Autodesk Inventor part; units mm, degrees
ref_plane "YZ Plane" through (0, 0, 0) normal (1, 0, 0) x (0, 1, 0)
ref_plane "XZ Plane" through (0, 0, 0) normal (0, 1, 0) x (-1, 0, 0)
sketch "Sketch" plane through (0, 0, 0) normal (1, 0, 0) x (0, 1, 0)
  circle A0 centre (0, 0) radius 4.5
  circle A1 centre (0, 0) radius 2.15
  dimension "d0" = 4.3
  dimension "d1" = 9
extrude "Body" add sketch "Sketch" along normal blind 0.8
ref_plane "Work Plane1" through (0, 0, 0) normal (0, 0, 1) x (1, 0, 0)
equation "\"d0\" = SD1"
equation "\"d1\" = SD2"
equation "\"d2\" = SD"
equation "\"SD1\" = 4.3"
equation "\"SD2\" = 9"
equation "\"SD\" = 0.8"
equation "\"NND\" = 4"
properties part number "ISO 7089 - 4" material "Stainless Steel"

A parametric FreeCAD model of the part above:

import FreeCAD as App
import Part
import Sketcher

V = App.Vector
Q = App.Units.Quantity

doc = App.newDocument("Part")
body = doc.addObject("PartDesign::Body", "Body")

sketch1 = doc.addObject("Sketcher::SketchObject", "Sketch")
body.addObject(sketch1)
sketch1.AttachmentSupport = (doc.YZ_Plane, [""])
sketch1.MapMode = "FlatFace"
sketch1.addGeometry([
    Part.Circle(V(0, 0, 0), V(0, 0, 1), 4.5),
    Part.Circle(V(0, 0, 0), V(0, 0, 1), 2.1),
], False)
sketch1.addConstraint([
    Sketcher.Constraint("Coincident", 0, 3, -1, 1),
    Sketcher.Constraint("Coincident", 1, 3, -1, 1),
    Sketcher.Constraint("Diameter", 0, Q("9 mm")),
    Sketcher.Constraint("Diameter", 1, Q("4.3 mm")),
])
pad1 = doc.addObject("PartDesign::Pad", "Pad")
body.addObject(pad1)
pad1.Profile = sketch1
pad1.Length = 0.8

doc.recompute()
